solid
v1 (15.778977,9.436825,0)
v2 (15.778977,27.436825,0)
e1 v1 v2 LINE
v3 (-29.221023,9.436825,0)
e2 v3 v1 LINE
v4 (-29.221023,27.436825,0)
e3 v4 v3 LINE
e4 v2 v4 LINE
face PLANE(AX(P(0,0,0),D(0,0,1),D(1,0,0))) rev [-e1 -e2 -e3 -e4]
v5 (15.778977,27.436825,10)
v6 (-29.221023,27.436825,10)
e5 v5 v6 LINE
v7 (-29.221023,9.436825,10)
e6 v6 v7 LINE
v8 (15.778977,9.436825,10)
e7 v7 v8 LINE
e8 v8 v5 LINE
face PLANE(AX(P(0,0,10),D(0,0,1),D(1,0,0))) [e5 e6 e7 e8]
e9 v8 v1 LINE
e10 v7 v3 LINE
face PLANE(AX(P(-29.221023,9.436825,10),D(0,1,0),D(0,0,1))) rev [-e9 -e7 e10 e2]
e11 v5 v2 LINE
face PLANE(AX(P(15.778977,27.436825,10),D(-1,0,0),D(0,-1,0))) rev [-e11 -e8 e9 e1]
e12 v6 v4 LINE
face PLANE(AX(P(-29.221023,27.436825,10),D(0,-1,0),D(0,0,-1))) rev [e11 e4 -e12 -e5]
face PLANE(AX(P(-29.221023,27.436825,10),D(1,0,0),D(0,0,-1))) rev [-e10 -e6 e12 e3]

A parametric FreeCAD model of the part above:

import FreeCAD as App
import Part
import Sketcher
from FreeCAD import Vector


def add_polygon(sketch, points):
    """Adds a closed chain of lines whose ends are joined by coincident constraints."""
    first, n = sketch.GeometryCount, len(points)
    for a, b in zip(points, points[1:] + points[:1]):
        sketch.addGeometry(Part.LineSegment(App.Vector(*a, 0), App.Vector(*b, 0)), False)
    for i in range(n):
        sketch.addConstraint(Sketcher.Constraint("Coincident", first + i, 2, first + (i + 1) % n, 1))

doc = App.newDocument("Part")
body = doc.addObject("PartDesign::Body", "Body")

# Sketch on XY plane
sketch1 = body.newObject("Sketcher::SketchObject", "Sketch")
sketch1.AttachmentSupport = (doc.getObject("XY_Plane"), [""])
sketch1.MapMode = "FlatFace"
add_polygon(sketch1, [(-29.221023, 27.436825), (-29.221023, 9.436825), (15.778977, 9.436825), (15.778977, 27.436825)])  # lines 0-3
sketch1.addConstraint([
    Sketcher.Constraint("Vertical", 0),
    Sketcher.Constraint("Horizontal", 1),
    Sketcher.Constraint("Vertical", 2),
    Sketcher.Constraint("Horizontal", 3),
    Sketcher.Constraint("DistanceX", 1, 1, 1, 2, 45.0),
    Sketcher.Constraint("DistanceY", 0, 2, 0, 1, 18.0),
    Sketcher.Constraint("DistanceX", 0, 2, -1, 1, 29.221023),
    Sketcher.Constraint("DistanceY", -1, 1, 0, 2, 9.436825),
])
pad1 = body.newObject("PartDesign::Pad", "Pad")
pad1.Profile = sketch1
pad1.Length = 10

doc.recompute()
